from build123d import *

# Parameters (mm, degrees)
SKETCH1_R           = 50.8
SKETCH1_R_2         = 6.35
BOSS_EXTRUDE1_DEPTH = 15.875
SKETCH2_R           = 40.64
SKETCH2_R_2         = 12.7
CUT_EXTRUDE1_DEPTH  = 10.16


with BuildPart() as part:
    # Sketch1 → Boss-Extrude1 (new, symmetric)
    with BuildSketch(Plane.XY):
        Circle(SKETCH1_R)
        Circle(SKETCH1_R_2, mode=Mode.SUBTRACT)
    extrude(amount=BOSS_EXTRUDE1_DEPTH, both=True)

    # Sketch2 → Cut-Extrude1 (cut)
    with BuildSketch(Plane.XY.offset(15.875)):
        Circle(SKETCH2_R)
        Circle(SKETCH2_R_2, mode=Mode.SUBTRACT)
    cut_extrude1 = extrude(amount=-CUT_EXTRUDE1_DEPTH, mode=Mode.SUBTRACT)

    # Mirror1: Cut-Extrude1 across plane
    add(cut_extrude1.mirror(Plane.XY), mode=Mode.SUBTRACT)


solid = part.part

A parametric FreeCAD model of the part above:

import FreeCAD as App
import Part
import Sketcher

V = App.Vector
Q = App.Units.Quantity

doc = App.newDocument("Part")
body = doc.addObject("PartDesign::Body", "Body")

sketch1 = doc.addObject("Sketcher::SketchObject", "Sketch")
body.addObject(sketch1)
sketch1.AttachmentSupport = (doc.XY_Plane, [""])
sketch1.MapMode = "FlatFace"
sketch1.addGeometry([
    Part.Circle(V(0, 0, 0), V(0, 0, 1), 50.8),
    Part.Circle(V(0, 0, 0), V(0, 0, 1), 6.35),
], False)
sketch1.addConstraint([
    Sketcher.Constraint("Coincident", 0, 3, -1, 1),
    Sketcher.Constraint("Coincident", 1, 3, -1, 1),
    Sketcher.Constraint("Diameter", 0, Q("4 in")),
    Sketcher.Constraint("Diameter", 1, Q("0.5 in")),
])
pad1 = doc.addObject("PartDesign::Pad", "Pad")
body.addObject(pad1)
pad1.Profile = sketch1
pad1.Length = Q("1.25 in")
pad1.Midplane = True

sketch2 = doc.addObject("Sketcher::SketchObject", "Sketch001")
body.addObject(sketch2)
sketch2.AttachmentSupport = (doc.XY_Plane, [""])
sketch2.MapMode = "FlatFace"
sketch2.AttachmentOffset = App.Placement(V(0, 0, 0.625 * 25.4), App.Rotation())
sketch2.addGeometry([
    Part.Circle(V(0, 0, 0), V(0, 0, 1), 40.64),
    Part.Circle(V(0, 0, 0), V(0, 0, 1), 12.7),
], False)
sketch2.addConstraint([
    Sketcher.Constraint("Coincident", 0, 3, -1, 1),
    Sketcher.Constraint("Coincident", 1, 3, -1, 1),
    Sketcher.Constraint("Diameter", 1, Q("1 in")),
    Sketcher.Constraint("Diameter", 0, Q("3.2 in")),
])
pocket1 = doc.addObject("PartDesign::Pocket", "Pocket")
body.addObject(pocket1)
pocket1.Profile = sketch2
pocket1.Length = Q("0.4 in")
doc.recompute()

mirrored = doc.addObject("PartDesign::Mirrored", "Mirrored")
body.addObject(mirrored)
mirrored.Originals = [pocket1]
mirrored.MirrorPlane = (doc.XY_Plane, [""])
body.Tip = mirrored

doc.recompute()
